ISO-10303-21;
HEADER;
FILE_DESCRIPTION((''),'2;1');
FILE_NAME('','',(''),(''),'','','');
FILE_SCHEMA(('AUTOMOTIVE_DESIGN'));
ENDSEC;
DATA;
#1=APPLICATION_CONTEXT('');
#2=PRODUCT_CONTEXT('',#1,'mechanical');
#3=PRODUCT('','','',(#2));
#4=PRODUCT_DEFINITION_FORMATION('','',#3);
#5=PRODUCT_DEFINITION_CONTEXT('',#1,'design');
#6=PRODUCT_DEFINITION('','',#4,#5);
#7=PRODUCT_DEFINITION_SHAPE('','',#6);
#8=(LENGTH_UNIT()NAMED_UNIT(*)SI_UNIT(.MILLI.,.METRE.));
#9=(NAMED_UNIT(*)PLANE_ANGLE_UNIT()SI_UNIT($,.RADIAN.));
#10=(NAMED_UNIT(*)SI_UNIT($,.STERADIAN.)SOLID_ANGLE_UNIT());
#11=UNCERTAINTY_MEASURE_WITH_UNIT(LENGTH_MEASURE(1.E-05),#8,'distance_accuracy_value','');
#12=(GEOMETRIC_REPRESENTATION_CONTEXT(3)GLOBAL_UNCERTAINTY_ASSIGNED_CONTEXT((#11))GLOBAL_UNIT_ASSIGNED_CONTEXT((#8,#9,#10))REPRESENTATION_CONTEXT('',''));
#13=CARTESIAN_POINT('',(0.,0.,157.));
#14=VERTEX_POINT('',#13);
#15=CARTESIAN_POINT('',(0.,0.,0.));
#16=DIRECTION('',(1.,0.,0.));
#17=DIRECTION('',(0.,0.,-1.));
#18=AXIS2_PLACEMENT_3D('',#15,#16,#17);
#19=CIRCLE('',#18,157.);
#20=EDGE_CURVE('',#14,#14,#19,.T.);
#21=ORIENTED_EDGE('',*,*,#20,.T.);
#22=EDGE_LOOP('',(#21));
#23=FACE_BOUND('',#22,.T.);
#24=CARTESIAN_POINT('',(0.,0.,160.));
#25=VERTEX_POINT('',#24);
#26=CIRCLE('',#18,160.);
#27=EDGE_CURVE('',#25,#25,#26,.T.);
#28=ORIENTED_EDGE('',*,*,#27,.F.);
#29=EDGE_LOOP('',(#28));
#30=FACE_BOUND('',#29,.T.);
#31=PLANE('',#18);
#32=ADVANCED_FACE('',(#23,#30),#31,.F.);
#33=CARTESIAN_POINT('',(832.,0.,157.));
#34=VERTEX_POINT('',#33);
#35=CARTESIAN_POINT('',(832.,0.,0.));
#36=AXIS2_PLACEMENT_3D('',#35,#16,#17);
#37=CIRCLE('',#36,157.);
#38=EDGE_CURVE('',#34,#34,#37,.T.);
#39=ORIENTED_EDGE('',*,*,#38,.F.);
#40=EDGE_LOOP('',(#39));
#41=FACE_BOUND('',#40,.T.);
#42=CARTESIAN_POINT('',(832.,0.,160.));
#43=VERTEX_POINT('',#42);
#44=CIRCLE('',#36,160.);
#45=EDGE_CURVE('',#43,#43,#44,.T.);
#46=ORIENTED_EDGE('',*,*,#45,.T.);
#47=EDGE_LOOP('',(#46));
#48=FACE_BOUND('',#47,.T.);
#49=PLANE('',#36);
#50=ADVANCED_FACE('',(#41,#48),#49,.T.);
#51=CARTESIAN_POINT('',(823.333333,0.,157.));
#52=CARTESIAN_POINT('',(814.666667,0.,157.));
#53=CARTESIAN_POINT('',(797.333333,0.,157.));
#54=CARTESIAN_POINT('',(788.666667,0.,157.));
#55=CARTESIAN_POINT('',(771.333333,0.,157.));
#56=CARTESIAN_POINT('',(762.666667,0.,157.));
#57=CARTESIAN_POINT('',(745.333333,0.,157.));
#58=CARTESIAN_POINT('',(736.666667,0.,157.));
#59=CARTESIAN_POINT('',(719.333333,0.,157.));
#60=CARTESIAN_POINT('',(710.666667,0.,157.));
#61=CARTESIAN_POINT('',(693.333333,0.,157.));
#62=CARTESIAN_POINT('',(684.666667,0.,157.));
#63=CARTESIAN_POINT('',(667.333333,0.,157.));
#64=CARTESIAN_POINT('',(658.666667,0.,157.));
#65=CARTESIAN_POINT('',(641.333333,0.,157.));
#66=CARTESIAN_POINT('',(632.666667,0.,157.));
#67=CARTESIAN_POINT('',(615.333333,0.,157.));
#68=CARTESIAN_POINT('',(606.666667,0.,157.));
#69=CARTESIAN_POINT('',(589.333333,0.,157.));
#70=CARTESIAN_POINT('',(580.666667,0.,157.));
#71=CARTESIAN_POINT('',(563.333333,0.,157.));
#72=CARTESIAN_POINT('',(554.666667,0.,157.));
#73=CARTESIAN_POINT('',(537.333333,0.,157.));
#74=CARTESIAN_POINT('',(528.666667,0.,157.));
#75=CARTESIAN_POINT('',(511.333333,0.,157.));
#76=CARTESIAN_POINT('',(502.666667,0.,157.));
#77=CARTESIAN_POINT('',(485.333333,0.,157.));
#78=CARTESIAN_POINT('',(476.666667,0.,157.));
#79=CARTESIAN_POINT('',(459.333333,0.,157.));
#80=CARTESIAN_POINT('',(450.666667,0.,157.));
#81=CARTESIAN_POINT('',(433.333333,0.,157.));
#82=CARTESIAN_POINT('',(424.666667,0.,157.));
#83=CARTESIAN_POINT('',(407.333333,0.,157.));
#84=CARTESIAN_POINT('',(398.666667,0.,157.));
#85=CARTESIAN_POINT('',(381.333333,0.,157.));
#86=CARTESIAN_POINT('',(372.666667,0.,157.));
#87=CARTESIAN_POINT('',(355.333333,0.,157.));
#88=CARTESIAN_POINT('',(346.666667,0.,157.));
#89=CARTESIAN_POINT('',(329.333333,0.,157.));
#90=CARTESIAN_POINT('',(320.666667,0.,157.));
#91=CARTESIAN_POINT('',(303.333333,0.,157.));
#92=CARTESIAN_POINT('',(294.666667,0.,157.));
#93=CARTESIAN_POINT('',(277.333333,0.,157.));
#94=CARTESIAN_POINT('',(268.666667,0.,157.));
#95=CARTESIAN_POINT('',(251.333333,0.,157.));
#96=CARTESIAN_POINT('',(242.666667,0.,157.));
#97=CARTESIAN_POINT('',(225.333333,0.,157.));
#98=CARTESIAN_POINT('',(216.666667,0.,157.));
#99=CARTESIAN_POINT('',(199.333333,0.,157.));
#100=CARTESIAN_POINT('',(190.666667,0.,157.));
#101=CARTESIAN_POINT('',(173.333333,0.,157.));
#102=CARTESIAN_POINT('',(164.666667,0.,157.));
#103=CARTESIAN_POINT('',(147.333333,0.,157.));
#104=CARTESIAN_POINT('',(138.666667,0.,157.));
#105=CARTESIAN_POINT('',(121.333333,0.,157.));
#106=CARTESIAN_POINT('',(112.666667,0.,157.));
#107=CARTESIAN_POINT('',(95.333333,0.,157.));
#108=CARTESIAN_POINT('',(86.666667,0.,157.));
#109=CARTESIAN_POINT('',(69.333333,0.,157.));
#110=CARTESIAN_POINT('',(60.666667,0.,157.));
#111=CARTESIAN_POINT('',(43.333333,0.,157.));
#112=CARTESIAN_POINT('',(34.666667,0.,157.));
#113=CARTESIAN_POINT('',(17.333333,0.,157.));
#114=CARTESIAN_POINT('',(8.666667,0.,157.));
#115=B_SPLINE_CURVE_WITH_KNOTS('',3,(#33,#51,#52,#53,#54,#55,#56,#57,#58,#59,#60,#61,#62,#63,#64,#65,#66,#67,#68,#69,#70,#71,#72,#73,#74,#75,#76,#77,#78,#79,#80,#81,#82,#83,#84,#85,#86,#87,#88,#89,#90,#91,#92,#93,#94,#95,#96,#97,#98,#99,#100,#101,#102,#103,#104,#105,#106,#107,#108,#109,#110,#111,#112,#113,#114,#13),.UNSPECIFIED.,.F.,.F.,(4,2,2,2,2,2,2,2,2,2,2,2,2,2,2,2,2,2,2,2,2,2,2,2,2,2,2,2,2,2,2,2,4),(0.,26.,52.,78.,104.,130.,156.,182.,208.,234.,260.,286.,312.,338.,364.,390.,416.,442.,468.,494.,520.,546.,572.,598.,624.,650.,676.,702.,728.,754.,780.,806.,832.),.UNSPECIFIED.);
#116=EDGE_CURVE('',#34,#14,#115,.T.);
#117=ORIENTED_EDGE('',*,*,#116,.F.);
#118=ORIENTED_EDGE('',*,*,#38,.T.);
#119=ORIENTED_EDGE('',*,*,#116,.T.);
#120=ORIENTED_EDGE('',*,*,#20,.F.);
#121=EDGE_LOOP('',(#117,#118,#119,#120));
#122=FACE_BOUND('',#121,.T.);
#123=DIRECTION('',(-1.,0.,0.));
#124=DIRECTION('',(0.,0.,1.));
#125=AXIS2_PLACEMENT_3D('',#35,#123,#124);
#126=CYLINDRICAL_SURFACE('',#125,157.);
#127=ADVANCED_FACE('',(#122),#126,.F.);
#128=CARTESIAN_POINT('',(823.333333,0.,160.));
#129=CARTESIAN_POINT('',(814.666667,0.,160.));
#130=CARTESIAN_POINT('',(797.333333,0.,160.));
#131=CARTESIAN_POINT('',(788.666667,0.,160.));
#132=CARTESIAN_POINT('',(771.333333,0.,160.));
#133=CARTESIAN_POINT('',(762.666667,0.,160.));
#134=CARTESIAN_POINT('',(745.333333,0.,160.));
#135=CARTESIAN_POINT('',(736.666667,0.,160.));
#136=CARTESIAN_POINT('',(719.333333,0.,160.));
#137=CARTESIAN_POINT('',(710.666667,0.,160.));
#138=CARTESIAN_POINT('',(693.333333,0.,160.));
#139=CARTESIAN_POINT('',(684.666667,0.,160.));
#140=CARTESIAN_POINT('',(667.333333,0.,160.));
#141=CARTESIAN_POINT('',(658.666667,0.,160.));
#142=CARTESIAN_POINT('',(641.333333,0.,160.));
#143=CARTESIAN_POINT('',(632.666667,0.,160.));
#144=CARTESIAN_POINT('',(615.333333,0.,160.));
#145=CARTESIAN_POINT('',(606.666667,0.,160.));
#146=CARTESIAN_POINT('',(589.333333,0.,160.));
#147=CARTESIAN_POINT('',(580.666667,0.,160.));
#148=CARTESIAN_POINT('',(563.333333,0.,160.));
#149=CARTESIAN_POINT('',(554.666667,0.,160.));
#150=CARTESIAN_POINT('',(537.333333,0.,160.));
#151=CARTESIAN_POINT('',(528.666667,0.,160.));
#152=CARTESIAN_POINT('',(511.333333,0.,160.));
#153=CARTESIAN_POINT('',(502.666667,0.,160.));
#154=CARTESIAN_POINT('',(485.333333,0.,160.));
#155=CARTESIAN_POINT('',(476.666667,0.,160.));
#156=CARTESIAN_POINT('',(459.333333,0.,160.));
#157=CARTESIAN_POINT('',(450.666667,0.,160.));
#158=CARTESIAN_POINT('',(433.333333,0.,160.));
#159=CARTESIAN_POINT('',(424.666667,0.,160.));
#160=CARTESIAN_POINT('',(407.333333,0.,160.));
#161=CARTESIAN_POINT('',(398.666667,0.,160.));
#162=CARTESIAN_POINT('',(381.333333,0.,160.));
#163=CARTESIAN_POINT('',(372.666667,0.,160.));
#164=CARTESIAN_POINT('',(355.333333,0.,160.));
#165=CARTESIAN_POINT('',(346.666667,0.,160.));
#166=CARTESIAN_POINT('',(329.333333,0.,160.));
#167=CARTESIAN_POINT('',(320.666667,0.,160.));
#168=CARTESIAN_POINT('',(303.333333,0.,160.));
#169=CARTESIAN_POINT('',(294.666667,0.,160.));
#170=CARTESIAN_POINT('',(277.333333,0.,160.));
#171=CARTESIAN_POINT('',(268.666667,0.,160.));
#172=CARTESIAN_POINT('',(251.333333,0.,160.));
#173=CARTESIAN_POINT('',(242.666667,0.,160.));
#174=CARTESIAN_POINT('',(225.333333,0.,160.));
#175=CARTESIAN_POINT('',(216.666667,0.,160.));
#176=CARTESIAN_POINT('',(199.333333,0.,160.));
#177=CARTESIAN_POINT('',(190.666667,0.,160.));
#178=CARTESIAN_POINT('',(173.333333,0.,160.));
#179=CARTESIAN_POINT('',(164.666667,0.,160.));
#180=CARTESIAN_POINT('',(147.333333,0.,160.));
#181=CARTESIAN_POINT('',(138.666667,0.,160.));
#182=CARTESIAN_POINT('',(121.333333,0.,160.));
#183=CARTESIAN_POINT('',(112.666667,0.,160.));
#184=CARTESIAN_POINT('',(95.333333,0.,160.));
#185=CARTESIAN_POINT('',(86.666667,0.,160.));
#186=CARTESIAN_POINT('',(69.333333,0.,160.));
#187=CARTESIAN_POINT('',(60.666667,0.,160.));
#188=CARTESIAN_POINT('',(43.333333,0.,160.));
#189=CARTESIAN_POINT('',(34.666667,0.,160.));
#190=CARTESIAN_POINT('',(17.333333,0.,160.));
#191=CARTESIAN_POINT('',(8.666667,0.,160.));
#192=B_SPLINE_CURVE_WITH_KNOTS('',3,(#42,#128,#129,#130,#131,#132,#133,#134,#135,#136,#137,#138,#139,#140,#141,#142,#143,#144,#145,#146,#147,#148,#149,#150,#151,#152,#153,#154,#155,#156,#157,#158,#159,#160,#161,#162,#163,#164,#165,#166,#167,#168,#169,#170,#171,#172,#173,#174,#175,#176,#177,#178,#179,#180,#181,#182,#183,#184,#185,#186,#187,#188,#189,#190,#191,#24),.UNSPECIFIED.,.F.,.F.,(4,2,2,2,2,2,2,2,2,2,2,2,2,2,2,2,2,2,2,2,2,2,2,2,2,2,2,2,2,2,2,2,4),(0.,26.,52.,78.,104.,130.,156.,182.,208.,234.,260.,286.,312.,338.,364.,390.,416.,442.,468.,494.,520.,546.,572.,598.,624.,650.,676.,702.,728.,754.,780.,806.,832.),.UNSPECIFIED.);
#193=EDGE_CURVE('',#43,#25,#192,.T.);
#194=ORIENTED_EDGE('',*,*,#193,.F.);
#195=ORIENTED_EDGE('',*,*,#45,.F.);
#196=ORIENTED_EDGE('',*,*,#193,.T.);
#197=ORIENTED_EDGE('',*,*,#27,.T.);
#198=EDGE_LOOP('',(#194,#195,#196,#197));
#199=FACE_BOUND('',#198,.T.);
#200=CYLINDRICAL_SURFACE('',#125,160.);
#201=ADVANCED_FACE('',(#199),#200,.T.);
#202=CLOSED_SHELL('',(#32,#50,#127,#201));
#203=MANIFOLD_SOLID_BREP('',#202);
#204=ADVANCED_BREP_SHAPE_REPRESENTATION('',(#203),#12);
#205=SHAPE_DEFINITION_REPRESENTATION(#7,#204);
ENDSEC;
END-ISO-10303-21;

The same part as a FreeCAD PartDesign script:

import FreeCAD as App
import Part
import Sketcher

V = App.Vector

doc = App.newDocument("Part")
body = doc.addObject("PartDesign::Body", "Body")

# Sketch on YZ plane
sketch1 = body.newObject("Sketcher::SketchObject", "Sketch")
sketch1.AttachmentSupport = (doc.getObject("YZ_Plane"), [""])
sketch1.MapMode = "FlatFace"
sketch1.addGeometry([
    Part.Circle(V(0, 0, 0), V(0, 0, 1), 160),
    Part.Circle(V(0, 0, 0), V(0, 0, 1), 157),
], False)
sketch1.addConstraint([
    Sketcher.Constraint("Coincident", 0, 3, -1, 1),
    Sketcher.Constraint("Coincident", 1, 3, -1, 1),
    Sketcher.Constraint("Diameter", 0, 320.0),
    Sketcher.Constraint("Diameter", 1, 314.0),
])
pad1 = body.newObject("PartDesign::Pad", "Pad")
pad1.Profile = sketch1
pad1.Length = 832

doc.recompute()
